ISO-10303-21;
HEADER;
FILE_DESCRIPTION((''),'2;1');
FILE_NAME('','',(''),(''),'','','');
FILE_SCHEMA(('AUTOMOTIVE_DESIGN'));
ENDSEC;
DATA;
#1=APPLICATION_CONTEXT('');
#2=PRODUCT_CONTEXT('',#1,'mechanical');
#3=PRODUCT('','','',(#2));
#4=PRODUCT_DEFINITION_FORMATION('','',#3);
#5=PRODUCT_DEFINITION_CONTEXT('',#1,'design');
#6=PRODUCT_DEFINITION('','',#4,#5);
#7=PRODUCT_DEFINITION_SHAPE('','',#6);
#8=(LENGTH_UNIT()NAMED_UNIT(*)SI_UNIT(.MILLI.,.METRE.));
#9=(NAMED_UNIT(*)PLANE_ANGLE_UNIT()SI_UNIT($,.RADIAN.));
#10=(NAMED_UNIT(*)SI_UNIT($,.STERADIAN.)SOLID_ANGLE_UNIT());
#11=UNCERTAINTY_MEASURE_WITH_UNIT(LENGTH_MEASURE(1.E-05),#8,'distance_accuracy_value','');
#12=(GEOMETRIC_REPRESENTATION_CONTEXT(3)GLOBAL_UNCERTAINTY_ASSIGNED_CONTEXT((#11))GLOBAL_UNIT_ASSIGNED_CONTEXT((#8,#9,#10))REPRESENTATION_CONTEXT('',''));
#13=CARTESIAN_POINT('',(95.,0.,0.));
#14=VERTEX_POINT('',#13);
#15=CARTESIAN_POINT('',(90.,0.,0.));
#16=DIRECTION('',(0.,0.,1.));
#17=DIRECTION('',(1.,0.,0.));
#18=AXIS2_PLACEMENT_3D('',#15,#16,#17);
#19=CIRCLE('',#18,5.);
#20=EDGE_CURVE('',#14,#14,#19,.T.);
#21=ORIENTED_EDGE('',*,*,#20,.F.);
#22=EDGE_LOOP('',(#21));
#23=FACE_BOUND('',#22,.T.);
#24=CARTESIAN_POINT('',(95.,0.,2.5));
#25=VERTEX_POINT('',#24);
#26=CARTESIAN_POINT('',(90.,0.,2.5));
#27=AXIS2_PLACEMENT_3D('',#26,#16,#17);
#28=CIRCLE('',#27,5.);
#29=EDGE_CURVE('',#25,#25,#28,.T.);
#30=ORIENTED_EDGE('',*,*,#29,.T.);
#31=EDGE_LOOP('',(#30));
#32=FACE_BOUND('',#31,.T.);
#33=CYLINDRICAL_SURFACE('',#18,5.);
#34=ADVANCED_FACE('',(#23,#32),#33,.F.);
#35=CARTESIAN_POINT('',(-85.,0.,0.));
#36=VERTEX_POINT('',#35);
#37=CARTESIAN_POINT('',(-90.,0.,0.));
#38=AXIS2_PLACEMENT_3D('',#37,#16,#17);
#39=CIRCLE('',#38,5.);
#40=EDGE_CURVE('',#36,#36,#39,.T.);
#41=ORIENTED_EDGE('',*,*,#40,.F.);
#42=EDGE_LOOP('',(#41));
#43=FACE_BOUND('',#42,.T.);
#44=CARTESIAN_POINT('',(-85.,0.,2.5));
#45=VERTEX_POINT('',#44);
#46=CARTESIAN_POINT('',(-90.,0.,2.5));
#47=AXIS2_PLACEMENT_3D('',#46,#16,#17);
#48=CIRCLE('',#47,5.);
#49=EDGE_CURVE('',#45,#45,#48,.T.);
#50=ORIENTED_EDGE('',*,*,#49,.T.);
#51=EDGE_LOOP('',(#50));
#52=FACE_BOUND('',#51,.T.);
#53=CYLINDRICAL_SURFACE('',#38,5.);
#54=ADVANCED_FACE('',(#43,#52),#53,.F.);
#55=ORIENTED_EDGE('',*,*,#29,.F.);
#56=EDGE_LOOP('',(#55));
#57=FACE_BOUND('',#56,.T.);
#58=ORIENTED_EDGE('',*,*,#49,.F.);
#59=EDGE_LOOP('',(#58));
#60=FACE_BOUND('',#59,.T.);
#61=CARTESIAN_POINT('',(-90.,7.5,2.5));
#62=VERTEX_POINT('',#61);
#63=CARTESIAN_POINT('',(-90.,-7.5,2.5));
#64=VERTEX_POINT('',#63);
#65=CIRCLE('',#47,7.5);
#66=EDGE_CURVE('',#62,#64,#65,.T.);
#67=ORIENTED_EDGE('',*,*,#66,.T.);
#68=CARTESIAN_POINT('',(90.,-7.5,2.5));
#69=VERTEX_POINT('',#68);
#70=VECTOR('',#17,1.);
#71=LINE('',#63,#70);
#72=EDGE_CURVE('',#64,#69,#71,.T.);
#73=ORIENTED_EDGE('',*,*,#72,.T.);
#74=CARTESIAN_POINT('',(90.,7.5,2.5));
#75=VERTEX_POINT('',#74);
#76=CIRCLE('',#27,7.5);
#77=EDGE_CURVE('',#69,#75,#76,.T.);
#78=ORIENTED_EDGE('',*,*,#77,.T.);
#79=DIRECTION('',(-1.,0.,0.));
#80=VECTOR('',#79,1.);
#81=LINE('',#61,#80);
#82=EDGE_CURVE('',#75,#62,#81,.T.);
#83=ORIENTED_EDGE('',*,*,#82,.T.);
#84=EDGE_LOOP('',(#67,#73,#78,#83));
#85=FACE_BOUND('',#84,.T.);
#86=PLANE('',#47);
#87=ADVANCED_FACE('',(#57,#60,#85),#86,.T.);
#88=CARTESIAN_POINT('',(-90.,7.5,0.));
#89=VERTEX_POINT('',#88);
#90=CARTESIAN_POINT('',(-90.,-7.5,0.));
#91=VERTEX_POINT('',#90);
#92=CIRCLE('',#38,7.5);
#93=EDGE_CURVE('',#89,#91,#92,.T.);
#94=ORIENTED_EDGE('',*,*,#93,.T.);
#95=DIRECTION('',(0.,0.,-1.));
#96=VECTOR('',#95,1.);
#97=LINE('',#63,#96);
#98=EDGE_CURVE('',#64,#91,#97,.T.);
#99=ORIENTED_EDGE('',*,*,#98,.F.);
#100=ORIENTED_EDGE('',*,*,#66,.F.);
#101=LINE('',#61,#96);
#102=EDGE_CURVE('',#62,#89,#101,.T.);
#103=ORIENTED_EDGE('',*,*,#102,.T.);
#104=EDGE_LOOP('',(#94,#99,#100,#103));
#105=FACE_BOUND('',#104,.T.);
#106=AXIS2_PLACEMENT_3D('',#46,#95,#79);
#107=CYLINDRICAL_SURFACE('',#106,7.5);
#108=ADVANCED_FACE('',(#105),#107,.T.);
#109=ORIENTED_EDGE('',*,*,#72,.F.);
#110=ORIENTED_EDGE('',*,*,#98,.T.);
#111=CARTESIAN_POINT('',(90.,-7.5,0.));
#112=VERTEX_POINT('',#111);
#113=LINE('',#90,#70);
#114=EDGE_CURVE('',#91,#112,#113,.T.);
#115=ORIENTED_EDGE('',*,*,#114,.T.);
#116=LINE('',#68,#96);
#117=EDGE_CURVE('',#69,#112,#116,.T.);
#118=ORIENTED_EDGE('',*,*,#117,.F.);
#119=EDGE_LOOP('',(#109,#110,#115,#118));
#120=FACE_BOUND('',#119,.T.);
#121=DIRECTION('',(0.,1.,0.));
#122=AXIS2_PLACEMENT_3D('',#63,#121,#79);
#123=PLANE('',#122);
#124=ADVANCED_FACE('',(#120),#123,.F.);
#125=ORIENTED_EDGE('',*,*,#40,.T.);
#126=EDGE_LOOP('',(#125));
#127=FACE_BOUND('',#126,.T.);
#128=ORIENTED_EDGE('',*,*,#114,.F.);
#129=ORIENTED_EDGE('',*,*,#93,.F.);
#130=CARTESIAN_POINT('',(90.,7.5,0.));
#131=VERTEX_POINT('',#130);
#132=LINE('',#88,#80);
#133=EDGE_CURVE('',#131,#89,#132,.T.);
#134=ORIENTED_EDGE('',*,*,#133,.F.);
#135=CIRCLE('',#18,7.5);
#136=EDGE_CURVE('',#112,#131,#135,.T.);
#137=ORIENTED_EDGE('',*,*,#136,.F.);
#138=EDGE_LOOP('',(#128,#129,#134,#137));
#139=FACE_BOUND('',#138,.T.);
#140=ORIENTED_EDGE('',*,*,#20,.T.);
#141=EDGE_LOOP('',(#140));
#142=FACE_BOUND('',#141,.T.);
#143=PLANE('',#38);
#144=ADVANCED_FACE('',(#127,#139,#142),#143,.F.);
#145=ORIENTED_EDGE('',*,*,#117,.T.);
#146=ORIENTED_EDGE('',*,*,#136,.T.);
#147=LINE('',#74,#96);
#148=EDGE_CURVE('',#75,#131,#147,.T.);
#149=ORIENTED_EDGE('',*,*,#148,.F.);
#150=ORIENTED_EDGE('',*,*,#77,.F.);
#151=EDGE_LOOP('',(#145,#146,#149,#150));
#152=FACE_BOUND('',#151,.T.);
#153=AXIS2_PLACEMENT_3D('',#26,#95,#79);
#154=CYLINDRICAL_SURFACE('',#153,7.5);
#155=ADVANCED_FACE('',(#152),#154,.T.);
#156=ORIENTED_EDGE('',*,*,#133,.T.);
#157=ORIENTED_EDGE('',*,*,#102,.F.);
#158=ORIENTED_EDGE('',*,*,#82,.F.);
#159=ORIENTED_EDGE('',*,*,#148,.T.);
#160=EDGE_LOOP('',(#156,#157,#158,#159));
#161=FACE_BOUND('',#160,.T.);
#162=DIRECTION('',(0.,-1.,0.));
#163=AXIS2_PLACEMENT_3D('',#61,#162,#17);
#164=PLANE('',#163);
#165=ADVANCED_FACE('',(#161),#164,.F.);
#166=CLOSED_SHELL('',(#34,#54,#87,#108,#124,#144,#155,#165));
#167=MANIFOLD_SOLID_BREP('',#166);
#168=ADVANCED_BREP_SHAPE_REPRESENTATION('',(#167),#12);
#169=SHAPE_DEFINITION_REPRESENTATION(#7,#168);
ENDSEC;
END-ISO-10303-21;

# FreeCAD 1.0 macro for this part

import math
import FreeCAD as App
import Part
import Sketcher

doc = App.newDocument("Part")
params = doc.addObject("Spreadsheet::Sheet", "Params")
for row, (alias, value) in enumerate([
    ("sketch1_radius", "7.5 mm"),
    ("sketch1_width", "180 mm"),
    ("pad1_length", "2.5 mm"),
    ("sketch2_diameter", "10 mm"),
], start=1):
    params.set(f"A{row}", alias)
    params.set(f"B{row}", "=" + value)
    params.setAlias(f"B{row}", alias)

body = doc.addObject("PartDesign::Body", "Body")

# Sketch on XY plane
sketch1 = doc.addObject("Sketcher::SketchObject", "Sketch")
body.addObject(sketch1)
sketch1.AttachmentSupport = (doc.XY_Plane, [""])
sketch1.MapMode = "FlatFace"
sketch1.addGeometry([
    Part.LineSegment(App.Vector(90, 7.5, 0), App.Vector(-90, 7.5, 0)),
    Part.ArcOfCircle(Part.Circle(App.Vector(-90, 0, 0), App.Vector(0, 0, 1), 7.5), math.radians(90), math.radians(270)),
    Part.LineSegment(App.Vector(-90, -7.5, 0), App.Vector(90, -7.5, 0)),
    Part.ArcOfCircle(Part.Circle(App.Vector(90, 0, 0), App.Vector(0, 0, 1), 7.5), math.radians(-90), math.radians(90)),
], False)
sketch1.addConstraint([
    Sketcher.Constraint("Tangent", 0, 2, 1, 1),
    Sketcher.Constraint("Tangent", 1, 2, 2, 1),
    Sketcher.Constraint("Tangent", 2, 2, 3, 1),
    Sketcher.Constraint("Tangent", 3, 2, 0, 1),
    Sketcher.Constraint("Horizontal", 0),
    Sketcher.Constraint("Horizontal", 2),
    Sketcher.Constraint("Symmetric", 1, 3, 3, 3, -1, 1),
    Sketcher.Constraint("Radius", 1, 7.5),
    Sketcher.Constraint("DistanceX", 0, 2, 0, 1, 180.0),
])
sketch1.setExpression("Constraints[7]", "Params.sketch1_radius")
sketch1.setExpression("Constraints[8]", "Params.sketch1_width")
pad1 = doc.addObject("PartDesign::Pad", "Pad")
body.addObject(pad1)
pad1.Profile = sketch1
pad1.setExpression("Length", "Params.pad1_length")

# Sketch on XY plane
sketch2 = doc.addObject("Sketcher::SketchObject", "Sketch001")
body.addObject(sketch2)
sketch2.AttachmentSupport = (doc.XY_Plane, [""])
sketch2.MapMode = "FlatFace"
sketch2.AttachmentOffset = App.Placement(App.Vector(0, 0, 2.5), App.Rotation())
sketch2.addGeometry([
    Part.Circle(App.Vector(-90, 0, 0), App.Vector(0, 0, 1), 5),
    Part.Circle(App.Vector(90, 0, 0), App.Vector(0, 0, 1), 5),
], False)
sketch2.addConstraint([
    Sketcher.Constraint("Equal", 0, 1),
    Sketcher.Constraint("Symmetric", 0, 3, 1, 3, -1, 1),
    Sketcher.Constraint("PointOnObject", 0, 3, -1),
    Sketcher.Constraint("Diameter", 0, 10.0),
    Sketcher.Constraint("DistanceX", 0, 3, -1, 1, 90.0),
])
sketch2.setExpression("Constraints[3]", "Params.sketch2_diameter")
pocket1 = doc.addObject("PartDesign::Pocket", "Pocket")
body.addObject(pocket1)
pocket1.Profile = sketch2
pocket1.Type = "ThroughAll"

doc.recompute()
